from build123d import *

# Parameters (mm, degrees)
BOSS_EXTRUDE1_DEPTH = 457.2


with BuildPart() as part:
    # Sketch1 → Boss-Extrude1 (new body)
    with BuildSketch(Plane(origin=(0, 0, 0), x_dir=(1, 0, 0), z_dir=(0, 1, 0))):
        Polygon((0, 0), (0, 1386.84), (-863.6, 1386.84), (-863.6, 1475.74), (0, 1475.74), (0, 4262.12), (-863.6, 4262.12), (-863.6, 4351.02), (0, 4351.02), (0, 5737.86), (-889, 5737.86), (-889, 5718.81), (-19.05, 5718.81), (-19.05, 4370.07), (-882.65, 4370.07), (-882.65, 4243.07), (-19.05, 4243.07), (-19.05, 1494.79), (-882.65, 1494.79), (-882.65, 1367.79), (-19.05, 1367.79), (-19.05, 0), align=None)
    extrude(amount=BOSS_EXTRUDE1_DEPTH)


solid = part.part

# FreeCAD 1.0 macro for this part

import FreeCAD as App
import Part
import Sketcher

V = App.Vector
Q = App.Units.Quantity

doc = App.newDocument("Part")
body = doc.addObject("PartDesign::Body", "Body")

# Sketch on XZ plane
sketch1 = doc.addObject("Sketcher::SketchObject", "Sketch")
body.addObject(sketch1)
sketch1.AttachmentSupport = (doc.XZ_Plane, [""])
sketch1.MapMode = "FlatFace"
sketch1.addGeometry([
    Part.LineSegment(V(0, 0, 0), V(0, -1387, 0)),  # 0
    Part.LineSegment(V(0, -1387, 0), V(-864, -1387, 0)),  # 1
    Part.LineSegment(V(-864, -1387, 0), V(-864, -1476, 0)),  # 2
    Part.LineSegment(V(-864, -1476, 0), V(0, -1476, 0)),  # 3
    Part.LineSegment(V(0, -1476, 0), V(0, -4262, 0)),  # 4
    Part.LineSegment(V(0, -4262, 0), V(-864, -4262, 0)),  # 5
    Part.LineSegment(V(-864, -4262, 0), V(-864, -4351, 0)),  # 6
    Part.LineSegment(V(-864, -4351, 0), V(0, -4351, 0)),  # 7
    Part.LineSegment(V(0, -4351, 0), V(0, -5738, 0)),  # 8
    Part.LineSegment(V(0, -5738, 0), V(-889, -5738, 0)),  # 9
    Part.LineSegment(V(-889, -5738, 0), V(-889, -5719, 0)),  # 10
    Part.LineSegment(V(-889, -5719, 0), V(-19, -5719, 0)),  # 11
    Part.LineSegment(V(-19, -5719, 0), V(-19, -4370, 0)),  # 12
    Part.LineSegment(V(-19, -4370, 0), V(-883, -4370, 0)),  # 13
    Part.LineSegment(V(-883, -4370, 0), V(-883, -4243, 0)),  # 14
    Part.LineSegment(V(-883, -4243, 0), V(-19, -4243, 0)),  # 15
    Part.LineSegment(V(-19, -4243, 0), V(-19, -1495, 0)),  # 16
    Part.LineSegment(V(-19, -1495, 0), V(-883, -1495, 0)),  # 17
    Part.LineSegment(V(-883, -1495, 0), V(-883, -1368, 0)),  # 18
    Part.LineSegment(V(-883, -1368, 0), V(-19, -1368, 0)),  # 19
    Part.LineSegment(V(-19, -1368, 0), V(-19, 0, 0)),  # 20
    Part.LineSegment(V(-19, 0, 0), V(0, 0, 0)),  # 21
], False)
sketch1.addConstraint([
    Sketcher.Constraint("Coincident", 0, 2, 1, 1),
    Sketcher.Constraint("Coincident", 1, 2, 2, 1),
    Sketcher.Constraint("Coincident", 2, 2, 3, 1),
    Sketcher.Constraint("Coincident", 3, 2, 4, 1),
    Sketcher.Constraint("Coincident", 4, 2, 5, 1),
    Sketcher.Constraint("Coincident", 5, 2, 6, 1),
    Sketcher.Constraint("Coincident", 6, 2, 7, 1),
    Sketcher.Constraint("Coincident", 7, 2, 8, 1),
    Sketcher.Constraint("Coincident", 8, 2, 9, 1),
    Sketcher.Constraint("Coincident", 9, 2, 10, 1),
    Sketcher.Constraint("Coincident", 10, 2, 11, 1),
    Sketcher.Constraint("Coincident", 11, 2, 12, 1),
    Sketcher.Constraint("Coincident", 12, 2, 13, 1),
    Sketcher.Constraint("Coincident", 13, 2, 14, 1),
    Sketcher.Constraint("Coincident", 14, 2, 15, 1),
    Sketcher.Constraint("Coincident", 15, 2, 16, 1),
    Sketcher.Constraint("Coincident", 16, 2, 17, 1),
    Sketcher.Constraint("Coincident", 17, 2, 18, 1),
    Sketcher.Constraint("Coincident", 18, 2, 19, 1),
    Sketcher.Constraint("Coincident", 19, 2, 20, 1),
    Sketcher.Constraint("Coincident", 20, 2, 21, 1),
    Sketcher.Constraint("Coincident", 21, 2, 0, 1),
    Sketcher.Constraint("Vertical", 0),
    Sketcher.Constraint("Horizontal", 1),
    Sketcher.Constraint("Vertical", 2),
    Sketcher.Constraint("Horizontal", 3),
    Sketcher.Constraint("Vertical", 4),
    Sketcher.Constraint("Horizontal", 5),
    Sketcher.Constraint("Vertical", 6),
    Sketcher.Constraint("Horizontal", 7),
    Sketcher.Constraint("Vertical", 8),
    Sketcher.Constraint("Horizontal", 9),
    Sketcher.Constraint("Vertical", 10),
    Sketcher.Constraint("Horizontal", 11),
    Sketcher.Constraint("Vertical", 12),
    Sketcher.Constraint("Horizontal", 13),
    Sketcher.Constraint("Vertical", 14),
    Sketcher.Constraint("Horizontal", 15),
    Sketcher.Constraint("Vertical", 16),
    Sketcher.Constraint("Horizontal", 17),
    Sketcher.Constraint("Vertical", 18),
    Sketcher.Constraint("Horizontal", 19),
    Sketcher.Constraint("Vertical", 20),
    Sketcher.Constraint("Horizontal", 21),
    Sketcher.Constraint("Coincident", 21, 2, -1, 1),
    Sketcher.Constraint("PointOnObject", 3, 2, -2),
    Sketcher.Constraint("PointOnObject", 7, 2, -2),
    Sketcher.Constraint("Vertical", 2, 2, 5, 2),
    Sketcher.Constraint("Vertical", 12, 2, 15, 2),
    Sketcher.Constraint("Vertical", 14, 2, 17, 2),
    Sketcher.Constraint("Vertical", 16, 2, 19, 2),
    Sketcher.Constraint("Equal", 7, 13),
    Sketcher.Constraint("Equal", 2, 6),
    Sketcher.Constraint("Equal", 0, 8),
    Sketcher.Constraint("Equal", 21, 10),
    Sketcher.Constraint("Equal", 14, 18),
    Sketcher.Constraint("DistanceX", 1, 2, 1, 1, Q("34 in")),
    Sketcher.Constraint("DistanceX", 9, 2, 9, 1, Q("35 in")),
    Sketcher.Constraint("DistanceY", 14, 1, 14, 2, Q("5 in")),
    Sketcher.Constraint("DistanceY", 0, 2, 0, 1, Q("54.6 in")),
    Sketcher.Constraint("DistanceY", 2, 2, 2, 1, Q("3.5 in")),
    Sketcher.Constraint("DistanceY", 4, 2, 4, 1, Q("109.7 in")),
    Sketcher.Constraint("DistanceY", 12, 1, 12, 2, Q("53.1 in")),
    Sketcher.Constraint("DistanceY", 16, 1, 16, 2, Q("108.2 in")),
    Sketcher.Constraint("DistanceX", 11, 1, 11, 2, Q("34.25 in")),
])
pad1 = doc.addObject("PartDesign::Pad", "Pad")
body.addObject(pad1)
pad1.Profile = sketch1
pad1.Length = Q("18 in")
pad1.Reversed = True

doc.recompute()
